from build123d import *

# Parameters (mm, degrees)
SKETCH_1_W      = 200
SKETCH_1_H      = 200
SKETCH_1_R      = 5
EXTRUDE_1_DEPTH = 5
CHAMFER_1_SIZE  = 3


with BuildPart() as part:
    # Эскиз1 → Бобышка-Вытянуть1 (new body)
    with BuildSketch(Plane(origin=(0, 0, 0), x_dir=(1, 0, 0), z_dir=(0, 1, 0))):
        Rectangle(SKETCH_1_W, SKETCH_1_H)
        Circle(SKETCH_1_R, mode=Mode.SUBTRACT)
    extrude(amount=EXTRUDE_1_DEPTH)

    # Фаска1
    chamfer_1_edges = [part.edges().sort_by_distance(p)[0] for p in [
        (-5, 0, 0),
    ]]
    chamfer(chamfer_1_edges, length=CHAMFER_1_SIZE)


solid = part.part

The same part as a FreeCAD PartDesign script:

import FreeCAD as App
import Part
import Sketcher
from FreeCAD import Vector
Q = App.Units.Quantity


def edges_at(feature, points):
    """Names of the edges that pass closest to the given points."""
    edges = feature.Shape.Edges
    near = lambda p: min(range(len(edges)), key=lambda i: edges[i].distToShape(Part.Vertex(*p))[0])
    return sorted({f"Edge{near(p) + 1}" for p in points})


def add_polygon(sketch, points):
    """Adds a closed chain of lines whose ends are joined by coincident constraints."""
    first, n = sketch.GeometryCount, len(points)
    for a, b in zip(points, points[1:] + points[:1]):
        sketch.addGeometry(Part.LineSegment(App.Vector(*a, 0), App.Vector(*b, 0)), False)
    for i in range(n):
        sketch.addConstraint(Sketcher.Constraint("Coincident", first + i, 2, first + (i + 1) % n, 1))

doc = App.newDocument("Part")
params = doc.addObject("Spreadsheet::Sheet", "Params")
for row, (alias, value) in enumerate([
    ("sketch1_diameter", "10 mm"),
    ("sketch1_width", "200 mm"),
    ("pad1_length", "5 mm"),
    ("chamfer_size", "3 mm"),
], start=1):
    params.set(f"A{row}", alias)
    params.set(f"B{row}", "=" + value)
    params.setAlias(f"B{row}", alias)

body = doc.addObject("PartDesign::Body", "Body")

# Sketch on XZ plane
sketch1 = doc.addObject("Sketcher::SketchObject", "Sketch")
body.addObject(sketch1)
sketch1.AttachmentSupport = (doc.XZ_Plane, [""])
sketch1.MapMode = "FlatFace"
add_polygon(sketch1, [(-100, -100), (-100, 100), (100, 100), (100, -100)])  # lines 0-3
sketch1.addGeometry(Part.Circle(Vector(0, 0, 0), Vector(0, 0, 1), 5), False)  # 4
sketch1.addConstraint([
    Sketcher.Constraint("Vertical", 0),
    Sketcher.Constraint("Horizontal", 1),
    Sketcher.Constraint("Vertical", 2),
    Sketcher.Constraint("Horizontal", 3),
    Sketcher.Constraint("Coincident", 4, 3, -1, 1),
    Sketcher.Constraint("Symmetric", 0, 2, 2, 2, -1, 1),
    Sketcher.Constraint("Equal", 3, 0),
    Sketcher.Constraint("Diameter", 4, Q("10 mm")),
    Sketcher.Constraint("DistanceX", 1, 1, 1, 2, Q("200 mm")),
])
sketch1.setExpression("Constraints[11]", "Params.sketch1_diameter")
sketch1.setExpression("Constraints[12]", "Params.sketch1_width")
pad1 = doc.addObject("PartDesign::Pad", "Pad")
body.addObject(pad1)
pad1.Profile = sketch1
pad1.setExpression("Length", "Params.pad1_length")
pad1.Reversed = True
doc.recompute()

chamfer = doc.addObject("PartDesign::Chamfer", "Chamfer")
body.addObject(chamfer)
chamfer.Base = (pad1, edges_at(pad1, [(-5, 0, 0)]))
chamfer.setExpression("Size", "Params.chamfer_size")

doc.recompute()
